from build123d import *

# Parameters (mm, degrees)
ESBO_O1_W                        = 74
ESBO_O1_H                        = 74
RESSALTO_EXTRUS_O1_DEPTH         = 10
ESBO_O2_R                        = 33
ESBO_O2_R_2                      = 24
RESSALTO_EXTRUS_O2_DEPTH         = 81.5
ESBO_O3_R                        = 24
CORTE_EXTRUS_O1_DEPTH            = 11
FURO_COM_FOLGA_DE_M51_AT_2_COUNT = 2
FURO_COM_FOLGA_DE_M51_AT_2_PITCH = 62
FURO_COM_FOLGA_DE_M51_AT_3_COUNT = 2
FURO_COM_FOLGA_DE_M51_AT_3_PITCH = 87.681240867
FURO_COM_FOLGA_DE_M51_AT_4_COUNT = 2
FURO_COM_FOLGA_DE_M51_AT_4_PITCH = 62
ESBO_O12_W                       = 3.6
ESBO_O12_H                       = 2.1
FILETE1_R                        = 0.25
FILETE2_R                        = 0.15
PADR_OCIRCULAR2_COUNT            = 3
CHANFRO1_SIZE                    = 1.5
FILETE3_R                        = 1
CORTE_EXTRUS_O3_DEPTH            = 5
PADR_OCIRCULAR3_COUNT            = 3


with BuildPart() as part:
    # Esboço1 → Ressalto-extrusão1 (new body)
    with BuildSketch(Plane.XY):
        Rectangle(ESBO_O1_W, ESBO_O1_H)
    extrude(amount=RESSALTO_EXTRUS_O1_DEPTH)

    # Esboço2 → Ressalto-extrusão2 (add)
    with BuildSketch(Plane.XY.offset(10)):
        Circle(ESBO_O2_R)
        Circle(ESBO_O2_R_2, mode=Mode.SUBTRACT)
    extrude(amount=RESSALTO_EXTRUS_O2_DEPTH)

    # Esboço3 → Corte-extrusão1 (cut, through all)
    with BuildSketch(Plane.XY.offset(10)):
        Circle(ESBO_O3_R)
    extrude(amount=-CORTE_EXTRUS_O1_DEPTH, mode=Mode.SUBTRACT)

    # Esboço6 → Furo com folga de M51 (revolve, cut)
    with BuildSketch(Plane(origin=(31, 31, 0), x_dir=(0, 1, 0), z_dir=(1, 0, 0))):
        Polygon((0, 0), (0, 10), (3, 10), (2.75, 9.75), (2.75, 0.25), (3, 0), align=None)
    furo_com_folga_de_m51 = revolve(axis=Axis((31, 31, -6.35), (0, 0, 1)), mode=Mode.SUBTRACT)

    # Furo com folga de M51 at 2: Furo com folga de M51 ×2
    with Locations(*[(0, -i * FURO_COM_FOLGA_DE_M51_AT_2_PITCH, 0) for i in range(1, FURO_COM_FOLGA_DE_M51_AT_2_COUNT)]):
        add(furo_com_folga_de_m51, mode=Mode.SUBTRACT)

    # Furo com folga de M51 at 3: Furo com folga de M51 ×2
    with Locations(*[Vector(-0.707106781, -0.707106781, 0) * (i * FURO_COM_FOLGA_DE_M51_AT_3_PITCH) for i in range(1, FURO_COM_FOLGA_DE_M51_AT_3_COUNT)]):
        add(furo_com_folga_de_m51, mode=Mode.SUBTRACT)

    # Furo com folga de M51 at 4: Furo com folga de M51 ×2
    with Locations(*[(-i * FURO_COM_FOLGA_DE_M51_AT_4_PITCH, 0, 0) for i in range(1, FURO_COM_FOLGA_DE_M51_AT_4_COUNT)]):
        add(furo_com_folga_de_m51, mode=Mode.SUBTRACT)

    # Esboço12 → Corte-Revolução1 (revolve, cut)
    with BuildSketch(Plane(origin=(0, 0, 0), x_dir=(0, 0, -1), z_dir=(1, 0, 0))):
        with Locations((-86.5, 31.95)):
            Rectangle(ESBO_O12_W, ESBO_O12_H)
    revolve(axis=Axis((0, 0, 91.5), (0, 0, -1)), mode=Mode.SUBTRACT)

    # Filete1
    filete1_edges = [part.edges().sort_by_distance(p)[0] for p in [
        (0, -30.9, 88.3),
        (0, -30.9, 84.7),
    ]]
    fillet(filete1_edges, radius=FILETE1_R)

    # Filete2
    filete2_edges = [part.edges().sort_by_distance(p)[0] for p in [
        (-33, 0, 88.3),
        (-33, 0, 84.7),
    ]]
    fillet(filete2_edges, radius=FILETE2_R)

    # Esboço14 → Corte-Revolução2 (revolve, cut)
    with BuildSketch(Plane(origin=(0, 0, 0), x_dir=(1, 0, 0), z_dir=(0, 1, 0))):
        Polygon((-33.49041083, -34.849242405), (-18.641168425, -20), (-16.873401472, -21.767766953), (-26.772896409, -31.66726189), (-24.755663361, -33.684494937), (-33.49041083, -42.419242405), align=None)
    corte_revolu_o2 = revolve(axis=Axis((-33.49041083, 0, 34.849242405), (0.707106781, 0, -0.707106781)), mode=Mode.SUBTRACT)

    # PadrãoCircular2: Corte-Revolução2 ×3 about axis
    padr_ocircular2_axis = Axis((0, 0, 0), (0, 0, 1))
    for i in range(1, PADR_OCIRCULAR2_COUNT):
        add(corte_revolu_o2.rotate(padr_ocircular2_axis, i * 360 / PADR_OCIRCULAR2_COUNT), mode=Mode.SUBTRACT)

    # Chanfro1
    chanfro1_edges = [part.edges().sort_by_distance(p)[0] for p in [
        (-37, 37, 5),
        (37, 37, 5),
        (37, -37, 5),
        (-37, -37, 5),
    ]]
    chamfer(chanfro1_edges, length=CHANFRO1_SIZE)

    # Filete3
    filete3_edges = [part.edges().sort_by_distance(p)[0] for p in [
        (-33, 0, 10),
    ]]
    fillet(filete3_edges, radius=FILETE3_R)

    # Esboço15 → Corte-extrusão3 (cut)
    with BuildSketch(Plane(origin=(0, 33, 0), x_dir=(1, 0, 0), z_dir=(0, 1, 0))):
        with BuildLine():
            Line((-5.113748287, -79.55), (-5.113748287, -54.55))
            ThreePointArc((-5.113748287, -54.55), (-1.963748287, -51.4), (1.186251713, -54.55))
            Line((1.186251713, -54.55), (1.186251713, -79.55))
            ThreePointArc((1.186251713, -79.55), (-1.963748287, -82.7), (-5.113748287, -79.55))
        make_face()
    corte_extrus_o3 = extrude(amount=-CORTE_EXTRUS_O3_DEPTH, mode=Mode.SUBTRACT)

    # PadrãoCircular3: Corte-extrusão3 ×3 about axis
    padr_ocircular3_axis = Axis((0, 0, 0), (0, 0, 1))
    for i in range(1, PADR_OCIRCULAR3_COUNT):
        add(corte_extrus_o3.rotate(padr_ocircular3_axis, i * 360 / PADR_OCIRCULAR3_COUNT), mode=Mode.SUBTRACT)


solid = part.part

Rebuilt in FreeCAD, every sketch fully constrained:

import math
import FreeCAD as App
import Part
import Sketcher
from FreeCAD import Vector
Q = App.Units.Quantity


def edges_at(feature, points):
    """Names of the edges that pass closest to the given points."""
    edges = feature.Shape.Edges
    near = lambda p: min(range(len(edges)), key=lambda i: edges[i].distToShape(Part.Vertex(*p))[0])
    return sorted({f"Edge{near(p) + 1}" for p in points})


def add_polygon(sketch, points):
    """Adds a closed chain of lines whose ends are joined by coincident constraints."""
    first, n = sketch.GeometryCount, len(points)
    for a, b in zip(points, points[1:] + points[:1]):
        sketch.addGeometry(Part.LineSegment(App.Vector(*a, 0), App.Vector(*b, 0)), False)
    for i in range(n):
        sketch.addConstraint(Sketcher.Constraint("Coincident", first + i, 2, first + (i + 1) % n, 1))

doc = App.newDocument("Part")
body = doc.addObject("PartDesign::Body", "Body")

# Sketch on XY plane
sketch1 = body.newObject("Sketcher::SketchObject", "Sketch")
sketch1.AttachmentSupport = (doc.getObject("XY_Plane"), [""])
sketch1.MapMode = "FlatFace"
add_polygon(sketch1, [(-37, 37), (-37, -37), (37, -37), (37, 37)])  # lines 0-3
sketch1.addConstraint([
    Sketcher.Constraint("Vertical", 0),
    Sketcher.Constraint("Horizontal", 1),
    Sketcher.Constraint("Vertical", 2),
    Sketcher.Constraint("Horizontal", 3),
    Sketcher.Constraint("Symmetric", 0, 2, 2, 2, -1, 1),
    Sketcher.Constraint("Equal", 3, 0),
    Sketcher.Constraint("DistanceX", 1, 1, 1, 2, Q("74 mm")),
])
pad1 = body.newObject("PartDesign::Pad", "Pad")
pad1.Profile = sketch1
pad1.Length = 10

# Sketch on XY plane
sketch2 = body.newObject("Sketcher::SketchObject", "Sketch001")
sketch2.AttachmentSupport = (doc.getObject("XY_Plane"), [""])
sketch2.MapMode = "FlatFace"
sketch2.AttachmentOffset = App.Placement(Vector(0, 0, 10), App.Rotation())
sketch2.addGeometry([
    Part.Circle(Vector(0, 0, 0), Vector(0, 0, 1), 33),
    Part.Circle(Vector(0, 0, 0), Vector(0, 0, 1), 24),
], False)
sketch2.addConstraint([
    Sketcher.Constraint("Coincident", 0, 3, -1, 1),
    Sketcher.Constraint("Coincident", 1, 3, -1, 1),
    Sketcher.Constraint("Diameter", 0, Q("66 mm")),
    Sketcher.Constraint("Diameter", 1, Q("48 mm")),
])
pad2 = body.newObject("PartDesign::Pad", "Pad001")
pad2.Profile = sketch2
pad2.Length = 81.5

# Sketch on XY plane
sketch3 = body.newObject("Sketcher::SketchObject", "Sketch002")
sketch3.AttachmentSupport = (doc.getObject("XY_Plane"), [""])
sketch3.MapMode = "FlatFace"
sketch3.AttachmentOffset = App.Placement(Vector(0, 0, 10), App.Rotation())
sketch3.addGeometry(Part.Circle(Vector(0, 0, 0), Vector(0, 0, 1), 24), False)
sketch3.addConstraint([
    Sketcher.Constraint("Coincident", 0, 3, -1, 1),
    Sketcher.Constraint("Diameter", 0, Q("48 mm")),
])
pocket1 = body.newObject("PartDesign::Pocket", "Pocket")
pocket1.Profile = sketch3
pocket1.Type = "ThroughAll"

# Sketch on YZ plane
sketch4 = body.newObject("Sketcher::SketchObject", "Sketch003")
sketch4.AttachmentSupport = (doc.getObject("YZ_Plane"), [""])
sketch4.MapMode = "FlatFace"
sketch4.AttachmentOffset = App.Placement(Vector(0, 0, 31), App.Rotation())
add_polygon(sketch4, [(31, 10), (31, 0), (34, 0), (33.75, 0.25), (33.75, 9.75), (34, 10)])  # lines 0-5
sketch4.addGeometry(Part.LineSegment(Vector(31, 0, 0), Vector(31, 10, 0)), True)  # axis
sketch4.addConstraint([
    Sketcher.Constraint("Vertical", 0),
    Sketcher.Constraint("Horizontal", 1),
    Sketcher.Constraint("Vertical", 3),
    Sketcher.Constraint("Horizontal", 5),
    Sketcher.Constraint("Vertical", 6),
    Sketcher.Constraint("Coincident", 6, 1, 0, 2),
    Sketcher.Constraint("PointOnObject", 0, 2, -1),
    Sketcher.Constraint("Perpendicular", 2, 4),
    Sketcher.Constraint("Horizontal", 4, 2, 6, 2),
    Sketcher.Constraint("Vertical", 1, 2, 4, 2),
    Sketcher.Constraint("Equal", 2, 4),
    Sketcher.Constraint("DistanceX", 1, 1, 1, 2, Q("3 mm")),
    Sketcher.Constraint("DistanceY", 0, 2, 0, 1, Q("10 mm")),
    Sketcher.Constraint("DistanceY", 3, 1, 3, 2, Q("9.5 mm")),
    Sketcher.Constraint("DistanceX", -1, 1, 0, 2, Q("31 mm")),
])
groove = body.newObject("PartDesign::Groove", "Groove")
groove.Profile = sketch4
groove.ReferenceAxis = (sketch4, ["Axis0"])
groove.Angle = 360
doc.recompute()

linearpattern = body.newObject("PartDesign::LinearPattern", "LinearPattern")
linearpattern.Originals = [groove]
linearpattern.Direction = (doc.getObject("Y_Axis"), [""])
linearpattern.Mode = "offset"
linearpattern.Offset = 62
linearpattern.Occurrences = 2
linearpattern.Reversed = True
body.Tip = linearpattern
doc.recompute()

datumline = body.newObject("PartDesign::Line", "DatumLine")
datumline.Placement = App.Placement(Vector(0, 0, 0), App.Rotation(Vector(0, 0, 1), Vector(-0.707106781, -0.707106781, 0)))
linearpattern2 = body.newObject("PartDesign::LinearPattern", "LinearPattern001")
linearpattern2.Originals = [groove]
linearpattern2.Direction = (datumline, [""])
linearpattern2.Mode = "offset"
linearpattern2.Offset = 87.681241
linearpattern2.Occurrences = 2
body.Tip = linearpattern2
doc.recompute()

linearpattern3 = body.newObject("PartDesign::LinearPattern", "LinearPattern002")
linearpattern3.Originals = [groove]
linearpattern3.Direction = (doc.getObject("X_Axis"), [""])
linearpattern3.Mode = "offset"
linearpattern3.Offset = 62
linearpattern3.Occurrences = 2
linearpattern3.Reversed = True
body.Tip = linearpattern3

# Sketch on YZ plane
sketch5 = body.newObject("Sketcher::SketchObject", "Sketch004")
sketch5.AttachmentSupport = (doc.getObject("YZ_Plane"), [""])
sketch5.MapMode = "FlatFace"
add_polygon(sketch5, [(33, 88.3), (30.9, 88.3), (30.9, 84.7), (33, 84.7)])  # lines 0-3
sketch5.addConstraint([
    Sketcher.Constraint("Horizontal", 0),
    Sketcher.Constraint("Vertical", 1),
    Sketcher.Constraint("Horizontal", 2),
    Sketcher.Constraint("Vertical", 3),
    Sketcher.Constraint("DistanceX", 0, 2, 0, 1, Q("2.1 mm")),
    Sketcher.Constraint("DistanceY", 1, 2, 1, 1, Q("3.6 mm")),
    Sketcher.Constraint("DistanceX", -1, 1, 2, 2, Q("33 mm")),
    Sketcher.Constraint("DistanceY", -1, 1, 0, 2, Q("88.3 mm")),
])
groove2 = body.newObject("PartDesign::Groove", "Groove001")
groove2.Profile = sketch5
groove2.ReferenceAxis = (sketch5, ["V_Axis"])
groove2.Angle = 360
doc.recompute()

fillet = body.newObject("PartDesign::Fillet", "Fillet")
fillet.Base = (groove2, edges_at(groove2, [(0, -30.9, 88.3), (0, -30.9, 84.7)]))
fillet.Radius = 0.25
doc.recompute()

fillet2 = body.newObject("PartDesign::Fillet", "Fillet001")
fillet2.Base = (fillet, edges_at(fillet, [(-33, 0, 88.3), (-33, 0, 84.7)]))
fillet2.Radius = 0.15

# Sketch on XZ plane
sketch6 = body.newObject("Sketcher::SketchObject", "Sketch005")
sketch6.AttachmentSupport = (doc.getObject("XZ_Plane"), [""])
sketch6.MapMode = "FlatFace"
add_polygon(sketch6, [(-18.6, 20), (-33.5, 34.8), (-33.5, 42.4), (-24.8, 33.7), (-26.8, 31.7), (-16.9, 21.8)])  # lines 0-5
sketch6.addGeometry(Part.LineSegment(Vector(-37.3, 38.6, 0), Vector(-18.6, 20, 0)), True)  # axis
sketch6.addConstraint([
    Sketcher.Constraint("Vertical", 1),
    Sketcher.Constraint("Coincident", 6, 2, 5, 2),
    Sketcher.Constraint("Parallel", 0, 2),
    Sketcher.Constraint("Perpendicular", 2, 3),
    Sketcher.Constraint("Perpendicular", 3, 4),
    Sketcher.Constraint("Perpendicular", 4, 5),
    Sketcher.Constraint("Perpendicular", 5, 6),
    Sketcher.Constraint("Angle", 0, Q("135 deg")),
    Sketcher.Constraint("Distance", 0, Q("21 mm")),
    Sketcher.Constraint("Distance", 4, Q("14 mm")),
    Sketcher.Constraint("DistanceY", -1, 1, 5, 2, Q("20 mm")),
    Sketcher.Constraint("Distance", 5, Q("2.5 mm")),
    Sketcher.Constraint("DistanceY", 1, 1, 1, 2, Q("7.57 mm")),
    Sketcher.Constraint("DistanceX", 6, 1, 0, 2, Q("3.785 mm")),
    Sketcher.Constraint("DistanceX", 4, 2, -1, 1, Q("16.873401 mm")),
])
groove3 = body.newObject("PartDesign::Groove", "Groove002")
groove3.Profile = sketch6
groove3.ReferenceAxis = (sketch6, ["Axis0"])
groove3.Angle = 360
doc.recompute()

polarpattern = body.newObject("PartDesign::PolarPattern", "PolarPattern")
polarpattern.Originals = [groove3]
polarpattern.Axis = (doc.getObject("Z_Axis"), [""])
polarpattern.Angle = 360
polarpattern.Occurrences = 3
body.Tip = polarpattern
doc.recompute()

chamfer = body.newObject("PartDesign::Chamfer", "Chamfer")
chamfer.Base = (polarpattern, edges_at(polarpattern, [
    (-37, 37, 5),
    (37, 37, 5),
    (37, -37, 5),
    (-37, -37, 5),
]))
chamfer.Size = 1.5
doc.recompute()

fillet3 = body.newObject("PartDesign::Fillet", "Fillet002")
fillet3.Base = (chamfer, edges_at(chamfer, [(-33, 0, 10)]))
fillet3.Radius = 1

# Sketch on XZ plane
sketch7 = body.newObject("Sketcher::SketchObject", "Sketch006")
sketch7.AttachmentSupport = (doc.getObject("XZ_Plane"), [""])
sketch7.MapMode = "FlatFace"
sketch7.AttachmentOffset = App.Placement(Vector(0, 0, -33), App.Rotation())
sketch7.addGeometry([
    Part.LineSegment(Vector(-5.1, 54.5, 0), Vector(-5.1, 79.5, 0)),
    Part.ArcOfCircle(Part.Circle(Vector(-2, 79.5, 0), Vector(0, 0, 1), 3.1), math.radians(0), math.radians(180)),
    Part.LineSegment(Vector(1.2, 79.5, 0), Vector(1.2, 54.5, 0)),
    Part.ArcOfCircle(Part.Circle(Vector(-2, 54.5, 0), Vector(0, 0, 1), 3.1), math.radians(180), math.radians(360)),
], False)
sketch7.addConstraint([
    Sketcher.Constraint("Tangent", 0, 2, 1, 2),
    Sketcher.Constraint("Tangent", 1, 1, 2, 1),
    Sketcher.Constraint("Tangent", 2, 2, 3, 2),
    Sketcher.Constraint("Tangent", 3, 1, 0, 1),
    Sketcher.Constraint("Vertical", 0),
    Sketcher.Constraint("Vertical", 2),
    Sketcher.Constraint("DistanceY", 0, 1, 0, 2, Q("25 mm")),
    Sketcher.Constraint("Radius", 1, Q("3.15 mm")),
    Sketcher.Constraint("DistanceY", -1, 1, 1, 3, Q("79.55 mm")),
    Sketcher.Constraint("DistanceX", 1, 3, -1, 1, Q("1.963748 mm")),
])
pocket2 = body.newObject("PartDesign::Pocket", "Pocket001")
pocket2.Profile = sketch7
pocket2.Length = 5
pocket2.Reversed = True
doc.recompute()

polarpattern2 = body.newObject("PartDesign::PolarPattern", "PolarPattern001")
polarpattern2.Originals = [pocket2]
polarpattern2.Axis = (doc.getObject("Z_Axis"), [""])
polarpattern2.Angle = 360
polarpattern2.Occurrences = 3
body.Tip = polarpattern2

doc.recompute()
